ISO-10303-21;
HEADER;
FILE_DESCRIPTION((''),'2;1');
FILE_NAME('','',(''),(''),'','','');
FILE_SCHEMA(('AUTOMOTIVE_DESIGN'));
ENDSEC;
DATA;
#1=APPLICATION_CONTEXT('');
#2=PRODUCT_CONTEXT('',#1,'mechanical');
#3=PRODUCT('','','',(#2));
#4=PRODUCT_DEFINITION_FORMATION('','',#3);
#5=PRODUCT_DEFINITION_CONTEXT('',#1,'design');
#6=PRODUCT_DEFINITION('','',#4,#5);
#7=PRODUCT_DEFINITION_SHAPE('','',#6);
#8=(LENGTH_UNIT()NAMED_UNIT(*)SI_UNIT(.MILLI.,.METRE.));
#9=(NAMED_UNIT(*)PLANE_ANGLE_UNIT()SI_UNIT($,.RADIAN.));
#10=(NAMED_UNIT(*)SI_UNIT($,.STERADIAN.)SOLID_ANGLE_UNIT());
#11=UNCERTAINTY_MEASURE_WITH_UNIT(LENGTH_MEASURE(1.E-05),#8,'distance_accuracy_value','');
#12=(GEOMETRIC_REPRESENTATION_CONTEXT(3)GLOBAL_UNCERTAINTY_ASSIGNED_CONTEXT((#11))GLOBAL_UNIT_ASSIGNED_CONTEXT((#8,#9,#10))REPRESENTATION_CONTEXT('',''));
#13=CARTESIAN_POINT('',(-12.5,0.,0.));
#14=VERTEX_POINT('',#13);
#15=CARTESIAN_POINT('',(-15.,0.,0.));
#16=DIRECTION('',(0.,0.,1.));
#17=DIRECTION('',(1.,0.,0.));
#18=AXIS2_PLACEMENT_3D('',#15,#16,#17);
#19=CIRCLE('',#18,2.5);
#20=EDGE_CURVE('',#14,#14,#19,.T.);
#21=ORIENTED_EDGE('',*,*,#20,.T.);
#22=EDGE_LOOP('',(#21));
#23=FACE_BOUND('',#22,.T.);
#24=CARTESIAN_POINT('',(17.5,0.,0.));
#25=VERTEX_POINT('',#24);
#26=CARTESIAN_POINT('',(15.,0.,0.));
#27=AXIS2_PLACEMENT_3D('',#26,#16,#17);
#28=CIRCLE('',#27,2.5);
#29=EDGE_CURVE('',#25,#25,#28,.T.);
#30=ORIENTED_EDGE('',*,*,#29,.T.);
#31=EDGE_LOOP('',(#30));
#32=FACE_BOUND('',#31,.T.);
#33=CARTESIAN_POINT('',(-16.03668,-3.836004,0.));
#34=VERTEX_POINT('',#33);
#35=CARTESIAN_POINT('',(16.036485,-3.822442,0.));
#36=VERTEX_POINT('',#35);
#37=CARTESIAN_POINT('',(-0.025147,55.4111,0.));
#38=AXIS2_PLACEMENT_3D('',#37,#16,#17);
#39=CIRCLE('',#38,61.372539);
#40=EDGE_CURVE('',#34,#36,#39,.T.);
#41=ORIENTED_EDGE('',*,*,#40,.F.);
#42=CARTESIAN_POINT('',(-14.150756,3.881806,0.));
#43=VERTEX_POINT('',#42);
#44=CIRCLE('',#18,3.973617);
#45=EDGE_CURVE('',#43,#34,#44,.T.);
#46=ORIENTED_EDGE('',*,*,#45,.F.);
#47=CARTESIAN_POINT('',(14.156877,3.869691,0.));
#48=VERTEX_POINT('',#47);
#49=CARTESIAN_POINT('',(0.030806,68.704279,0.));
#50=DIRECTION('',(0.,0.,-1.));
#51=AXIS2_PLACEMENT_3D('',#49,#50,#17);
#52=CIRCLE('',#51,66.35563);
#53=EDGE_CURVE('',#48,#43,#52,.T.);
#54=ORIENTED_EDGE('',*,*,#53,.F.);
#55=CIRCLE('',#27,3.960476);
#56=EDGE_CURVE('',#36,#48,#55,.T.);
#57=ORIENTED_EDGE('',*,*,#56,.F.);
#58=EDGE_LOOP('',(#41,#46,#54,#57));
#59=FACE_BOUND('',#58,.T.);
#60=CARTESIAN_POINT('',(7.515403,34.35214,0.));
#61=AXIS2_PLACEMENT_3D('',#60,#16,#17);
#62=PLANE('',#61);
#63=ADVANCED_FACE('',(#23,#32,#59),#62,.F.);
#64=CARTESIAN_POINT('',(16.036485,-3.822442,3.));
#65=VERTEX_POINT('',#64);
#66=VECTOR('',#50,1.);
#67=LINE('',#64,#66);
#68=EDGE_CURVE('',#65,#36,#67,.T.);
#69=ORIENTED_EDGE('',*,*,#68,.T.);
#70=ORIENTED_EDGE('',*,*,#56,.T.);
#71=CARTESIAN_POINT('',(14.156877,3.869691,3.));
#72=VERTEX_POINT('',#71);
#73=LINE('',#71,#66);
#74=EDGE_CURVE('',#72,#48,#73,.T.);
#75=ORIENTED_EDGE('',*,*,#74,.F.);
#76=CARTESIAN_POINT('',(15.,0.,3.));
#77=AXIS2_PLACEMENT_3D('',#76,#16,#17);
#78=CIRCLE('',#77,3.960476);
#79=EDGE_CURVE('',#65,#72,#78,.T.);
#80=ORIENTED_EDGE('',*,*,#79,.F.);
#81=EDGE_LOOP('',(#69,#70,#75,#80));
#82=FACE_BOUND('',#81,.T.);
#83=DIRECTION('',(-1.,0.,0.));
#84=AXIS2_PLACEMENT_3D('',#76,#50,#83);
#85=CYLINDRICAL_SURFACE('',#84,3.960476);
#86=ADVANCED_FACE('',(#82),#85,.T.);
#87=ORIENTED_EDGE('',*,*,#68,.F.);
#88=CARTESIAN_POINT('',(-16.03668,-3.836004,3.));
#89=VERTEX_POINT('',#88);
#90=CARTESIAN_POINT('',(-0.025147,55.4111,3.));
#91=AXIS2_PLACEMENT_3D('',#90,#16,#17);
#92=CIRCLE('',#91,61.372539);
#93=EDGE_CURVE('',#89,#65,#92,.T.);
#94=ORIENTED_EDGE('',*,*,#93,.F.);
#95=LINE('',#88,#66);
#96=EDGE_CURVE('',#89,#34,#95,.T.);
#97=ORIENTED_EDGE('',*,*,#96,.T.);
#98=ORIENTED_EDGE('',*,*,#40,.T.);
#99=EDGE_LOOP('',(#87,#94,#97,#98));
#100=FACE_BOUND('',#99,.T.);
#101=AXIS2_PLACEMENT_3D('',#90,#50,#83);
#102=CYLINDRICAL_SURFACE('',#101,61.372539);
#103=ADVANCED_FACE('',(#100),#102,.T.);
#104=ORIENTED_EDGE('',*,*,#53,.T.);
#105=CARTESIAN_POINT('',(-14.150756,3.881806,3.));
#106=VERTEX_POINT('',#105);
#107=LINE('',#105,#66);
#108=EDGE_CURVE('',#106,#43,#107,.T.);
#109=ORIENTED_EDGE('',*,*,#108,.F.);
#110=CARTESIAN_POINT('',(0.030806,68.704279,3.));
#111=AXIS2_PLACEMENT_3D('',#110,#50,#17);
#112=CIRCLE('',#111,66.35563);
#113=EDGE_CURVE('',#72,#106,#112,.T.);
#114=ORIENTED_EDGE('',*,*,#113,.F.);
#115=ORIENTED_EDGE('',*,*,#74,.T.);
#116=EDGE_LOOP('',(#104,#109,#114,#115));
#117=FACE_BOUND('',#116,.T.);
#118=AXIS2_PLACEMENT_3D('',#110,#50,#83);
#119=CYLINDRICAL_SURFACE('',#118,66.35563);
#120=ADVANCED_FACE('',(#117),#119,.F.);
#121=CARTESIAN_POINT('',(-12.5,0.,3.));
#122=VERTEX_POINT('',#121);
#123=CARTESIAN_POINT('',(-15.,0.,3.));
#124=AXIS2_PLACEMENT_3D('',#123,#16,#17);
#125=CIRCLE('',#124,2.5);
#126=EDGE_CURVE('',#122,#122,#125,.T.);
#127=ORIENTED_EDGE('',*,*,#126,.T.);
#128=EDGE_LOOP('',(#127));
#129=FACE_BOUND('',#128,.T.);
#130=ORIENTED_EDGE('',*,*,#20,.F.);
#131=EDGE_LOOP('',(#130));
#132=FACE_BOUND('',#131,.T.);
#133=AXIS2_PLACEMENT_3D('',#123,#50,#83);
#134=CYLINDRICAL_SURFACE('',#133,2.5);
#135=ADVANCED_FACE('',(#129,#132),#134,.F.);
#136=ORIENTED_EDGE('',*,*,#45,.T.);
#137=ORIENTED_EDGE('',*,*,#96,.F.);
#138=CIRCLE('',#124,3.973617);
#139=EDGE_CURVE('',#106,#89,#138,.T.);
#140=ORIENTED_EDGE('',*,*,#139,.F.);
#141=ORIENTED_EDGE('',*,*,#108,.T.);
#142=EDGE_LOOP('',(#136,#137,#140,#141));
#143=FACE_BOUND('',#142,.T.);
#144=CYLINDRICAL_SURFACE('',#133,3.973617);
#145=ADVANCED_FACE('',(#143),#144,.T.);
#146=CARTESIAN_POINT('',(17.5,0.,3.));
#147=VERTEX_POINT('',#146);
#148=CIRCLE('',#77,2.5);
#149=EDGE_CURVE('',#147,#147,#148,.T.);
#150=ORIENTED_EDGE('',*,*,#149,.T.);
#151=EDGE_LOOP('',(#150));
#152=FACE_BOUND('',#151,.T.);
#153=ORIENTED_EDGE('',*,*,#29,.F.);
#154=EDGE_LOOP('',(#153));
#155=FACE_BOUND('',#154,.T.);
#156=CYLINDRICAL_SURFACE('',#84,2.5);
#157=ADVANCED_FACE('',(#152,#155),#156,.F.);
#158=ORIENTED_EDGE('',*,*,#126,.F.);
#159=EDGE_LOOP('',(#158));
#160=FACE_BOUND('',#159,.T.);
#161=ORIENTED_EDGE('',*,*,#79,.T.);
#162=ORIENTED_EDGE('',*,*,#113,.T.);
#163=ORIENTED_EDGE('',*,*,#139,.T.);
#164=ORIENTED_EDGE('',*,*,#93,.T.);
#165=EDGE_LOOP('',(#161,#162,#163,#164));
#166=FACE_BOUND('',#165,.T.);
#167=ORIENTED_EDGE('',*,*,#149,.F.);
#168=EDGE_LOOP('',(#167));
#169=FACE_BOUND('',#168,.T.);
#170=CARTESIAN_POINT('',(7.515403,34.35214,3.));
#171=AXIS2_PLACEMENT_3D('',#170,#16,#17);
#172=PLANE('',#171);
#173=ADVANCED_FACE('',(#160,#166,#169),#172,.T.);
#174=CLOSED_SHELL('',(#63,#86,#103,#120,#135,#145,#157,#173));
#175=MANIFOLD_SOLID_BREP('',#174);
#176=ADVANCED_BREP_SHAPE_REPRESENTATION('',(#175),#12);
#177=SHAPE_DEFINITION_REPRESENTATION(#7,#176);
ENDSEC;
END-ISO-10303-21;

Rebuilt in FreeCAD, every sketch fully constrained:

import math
import FreeCAD as App
import Part
import Sketcher
Q = App.Units.Quantity

doc = App.newDocument("Part")
params = doc.addObject("Spreadsheet::Sheet", "Params")
for row, (alias, value) in enumerate([
    ("sketch1_diameter", "5 mm"),
    ("pad1_length", "3 mm"),
], start=1):
    params.set(f"A{row}", alias)
    params.set(f"B{row}", "=" + value)
    params.setAlias(f"B{row}", alias)

body = doc.addObject("PartDesign::Body", "Body")

# Sketch on XY plane
sketch1 = body.newObject("Sketcher::SketchObject", "Sketch")
sketch1.AttachmentSupport = (doc.getObject("XY_Plane"), [""])
sketch1.MapMode = "FlatFace"
sketch1.addGeometry([
    Part.ArcOfCircle(Part.Circle(App.Vector(-15, 0, 0), App.Vector(0, 0, 1), 4), math.radians(78), math.radians(255)),  # 0
    Part.ArcOfCircle(Part.Circle(App.Vector(0, 55.4, 0), App.Vector(0, 0, 1), 61.4), math.radians(-105), math.radians(-75)),  # 1
    Part.ArcOfCircle(Part.Circle(App.Vector(15, 0, 0), App.Vector(0, 0, 1), 4), math.radians(-75), math.radians(102)),  # 2
    Part.ArcOfCircle(Part.Circle(App.Vector(0, 68.7, 0), App.Vector(0, 0, 1), 66.4), math.radians(-102), math.radians(-78)),  # 3
    Part.Circle(App.Vector(-15, 0, 0), App.Vector(0, 0, 1), 2.5),  # 4
    Part.Circle(App.Vector(15, 0, 0), App.Vector(0, 0, 1), 2.5),  # 5
], False)
sketch1.addConstraint([
    Sketcher.Constraint("Tangent", 0, 2, 1, 1),
    Sketcher.Constraint("Tangent", 1, 2, 2, 1),
    Sketcher.Constraint("Tangent", 2, 2, 3, 2),
    Sketcher.Constraint("Tangent", 3, 1, 0, 1),
    Sketcher.Constraint("Coincident", 4, 3, 0, 3),
    Sketcher.Constraint("Coincident", 5, 3, 2, 3),
    Sketcher.Constraint("Equal", 4, 5),
    Sketcher.Constraint("Symmetric", 0, 3, 2, 3, -1, 1),
    Sketcher.Constraint("PointOnObject", 0, 3, -1),
    Sketcher.Constraint("Diameter", 4, Q("5 mm")),
    Sketcher.Constraint("DistanceX", 0, 3, -1, 1, Q("15 mm")),
    Sketcher.Constraint("Radius", 1, Q("61.372539 mm")),
    Sketcher.Constraint("Radius", 3, Q("66.35563 mm")),
    Sketcher.Constraint("Radius", 0, Q("3.973617 mm")),
    Sketcher.Constraint("Radius", 2, Q("3.960476 mm")),
])
sketch1.setExpression("Constraints[9]", "Params.sketch1_diameter")
pad1 = body.newObject("PartDesign::Pad", "Pad")
pad1.Profile = sketch1
pad1.setExpression("Length", "Params.pad1_length")

doc.recompute()
